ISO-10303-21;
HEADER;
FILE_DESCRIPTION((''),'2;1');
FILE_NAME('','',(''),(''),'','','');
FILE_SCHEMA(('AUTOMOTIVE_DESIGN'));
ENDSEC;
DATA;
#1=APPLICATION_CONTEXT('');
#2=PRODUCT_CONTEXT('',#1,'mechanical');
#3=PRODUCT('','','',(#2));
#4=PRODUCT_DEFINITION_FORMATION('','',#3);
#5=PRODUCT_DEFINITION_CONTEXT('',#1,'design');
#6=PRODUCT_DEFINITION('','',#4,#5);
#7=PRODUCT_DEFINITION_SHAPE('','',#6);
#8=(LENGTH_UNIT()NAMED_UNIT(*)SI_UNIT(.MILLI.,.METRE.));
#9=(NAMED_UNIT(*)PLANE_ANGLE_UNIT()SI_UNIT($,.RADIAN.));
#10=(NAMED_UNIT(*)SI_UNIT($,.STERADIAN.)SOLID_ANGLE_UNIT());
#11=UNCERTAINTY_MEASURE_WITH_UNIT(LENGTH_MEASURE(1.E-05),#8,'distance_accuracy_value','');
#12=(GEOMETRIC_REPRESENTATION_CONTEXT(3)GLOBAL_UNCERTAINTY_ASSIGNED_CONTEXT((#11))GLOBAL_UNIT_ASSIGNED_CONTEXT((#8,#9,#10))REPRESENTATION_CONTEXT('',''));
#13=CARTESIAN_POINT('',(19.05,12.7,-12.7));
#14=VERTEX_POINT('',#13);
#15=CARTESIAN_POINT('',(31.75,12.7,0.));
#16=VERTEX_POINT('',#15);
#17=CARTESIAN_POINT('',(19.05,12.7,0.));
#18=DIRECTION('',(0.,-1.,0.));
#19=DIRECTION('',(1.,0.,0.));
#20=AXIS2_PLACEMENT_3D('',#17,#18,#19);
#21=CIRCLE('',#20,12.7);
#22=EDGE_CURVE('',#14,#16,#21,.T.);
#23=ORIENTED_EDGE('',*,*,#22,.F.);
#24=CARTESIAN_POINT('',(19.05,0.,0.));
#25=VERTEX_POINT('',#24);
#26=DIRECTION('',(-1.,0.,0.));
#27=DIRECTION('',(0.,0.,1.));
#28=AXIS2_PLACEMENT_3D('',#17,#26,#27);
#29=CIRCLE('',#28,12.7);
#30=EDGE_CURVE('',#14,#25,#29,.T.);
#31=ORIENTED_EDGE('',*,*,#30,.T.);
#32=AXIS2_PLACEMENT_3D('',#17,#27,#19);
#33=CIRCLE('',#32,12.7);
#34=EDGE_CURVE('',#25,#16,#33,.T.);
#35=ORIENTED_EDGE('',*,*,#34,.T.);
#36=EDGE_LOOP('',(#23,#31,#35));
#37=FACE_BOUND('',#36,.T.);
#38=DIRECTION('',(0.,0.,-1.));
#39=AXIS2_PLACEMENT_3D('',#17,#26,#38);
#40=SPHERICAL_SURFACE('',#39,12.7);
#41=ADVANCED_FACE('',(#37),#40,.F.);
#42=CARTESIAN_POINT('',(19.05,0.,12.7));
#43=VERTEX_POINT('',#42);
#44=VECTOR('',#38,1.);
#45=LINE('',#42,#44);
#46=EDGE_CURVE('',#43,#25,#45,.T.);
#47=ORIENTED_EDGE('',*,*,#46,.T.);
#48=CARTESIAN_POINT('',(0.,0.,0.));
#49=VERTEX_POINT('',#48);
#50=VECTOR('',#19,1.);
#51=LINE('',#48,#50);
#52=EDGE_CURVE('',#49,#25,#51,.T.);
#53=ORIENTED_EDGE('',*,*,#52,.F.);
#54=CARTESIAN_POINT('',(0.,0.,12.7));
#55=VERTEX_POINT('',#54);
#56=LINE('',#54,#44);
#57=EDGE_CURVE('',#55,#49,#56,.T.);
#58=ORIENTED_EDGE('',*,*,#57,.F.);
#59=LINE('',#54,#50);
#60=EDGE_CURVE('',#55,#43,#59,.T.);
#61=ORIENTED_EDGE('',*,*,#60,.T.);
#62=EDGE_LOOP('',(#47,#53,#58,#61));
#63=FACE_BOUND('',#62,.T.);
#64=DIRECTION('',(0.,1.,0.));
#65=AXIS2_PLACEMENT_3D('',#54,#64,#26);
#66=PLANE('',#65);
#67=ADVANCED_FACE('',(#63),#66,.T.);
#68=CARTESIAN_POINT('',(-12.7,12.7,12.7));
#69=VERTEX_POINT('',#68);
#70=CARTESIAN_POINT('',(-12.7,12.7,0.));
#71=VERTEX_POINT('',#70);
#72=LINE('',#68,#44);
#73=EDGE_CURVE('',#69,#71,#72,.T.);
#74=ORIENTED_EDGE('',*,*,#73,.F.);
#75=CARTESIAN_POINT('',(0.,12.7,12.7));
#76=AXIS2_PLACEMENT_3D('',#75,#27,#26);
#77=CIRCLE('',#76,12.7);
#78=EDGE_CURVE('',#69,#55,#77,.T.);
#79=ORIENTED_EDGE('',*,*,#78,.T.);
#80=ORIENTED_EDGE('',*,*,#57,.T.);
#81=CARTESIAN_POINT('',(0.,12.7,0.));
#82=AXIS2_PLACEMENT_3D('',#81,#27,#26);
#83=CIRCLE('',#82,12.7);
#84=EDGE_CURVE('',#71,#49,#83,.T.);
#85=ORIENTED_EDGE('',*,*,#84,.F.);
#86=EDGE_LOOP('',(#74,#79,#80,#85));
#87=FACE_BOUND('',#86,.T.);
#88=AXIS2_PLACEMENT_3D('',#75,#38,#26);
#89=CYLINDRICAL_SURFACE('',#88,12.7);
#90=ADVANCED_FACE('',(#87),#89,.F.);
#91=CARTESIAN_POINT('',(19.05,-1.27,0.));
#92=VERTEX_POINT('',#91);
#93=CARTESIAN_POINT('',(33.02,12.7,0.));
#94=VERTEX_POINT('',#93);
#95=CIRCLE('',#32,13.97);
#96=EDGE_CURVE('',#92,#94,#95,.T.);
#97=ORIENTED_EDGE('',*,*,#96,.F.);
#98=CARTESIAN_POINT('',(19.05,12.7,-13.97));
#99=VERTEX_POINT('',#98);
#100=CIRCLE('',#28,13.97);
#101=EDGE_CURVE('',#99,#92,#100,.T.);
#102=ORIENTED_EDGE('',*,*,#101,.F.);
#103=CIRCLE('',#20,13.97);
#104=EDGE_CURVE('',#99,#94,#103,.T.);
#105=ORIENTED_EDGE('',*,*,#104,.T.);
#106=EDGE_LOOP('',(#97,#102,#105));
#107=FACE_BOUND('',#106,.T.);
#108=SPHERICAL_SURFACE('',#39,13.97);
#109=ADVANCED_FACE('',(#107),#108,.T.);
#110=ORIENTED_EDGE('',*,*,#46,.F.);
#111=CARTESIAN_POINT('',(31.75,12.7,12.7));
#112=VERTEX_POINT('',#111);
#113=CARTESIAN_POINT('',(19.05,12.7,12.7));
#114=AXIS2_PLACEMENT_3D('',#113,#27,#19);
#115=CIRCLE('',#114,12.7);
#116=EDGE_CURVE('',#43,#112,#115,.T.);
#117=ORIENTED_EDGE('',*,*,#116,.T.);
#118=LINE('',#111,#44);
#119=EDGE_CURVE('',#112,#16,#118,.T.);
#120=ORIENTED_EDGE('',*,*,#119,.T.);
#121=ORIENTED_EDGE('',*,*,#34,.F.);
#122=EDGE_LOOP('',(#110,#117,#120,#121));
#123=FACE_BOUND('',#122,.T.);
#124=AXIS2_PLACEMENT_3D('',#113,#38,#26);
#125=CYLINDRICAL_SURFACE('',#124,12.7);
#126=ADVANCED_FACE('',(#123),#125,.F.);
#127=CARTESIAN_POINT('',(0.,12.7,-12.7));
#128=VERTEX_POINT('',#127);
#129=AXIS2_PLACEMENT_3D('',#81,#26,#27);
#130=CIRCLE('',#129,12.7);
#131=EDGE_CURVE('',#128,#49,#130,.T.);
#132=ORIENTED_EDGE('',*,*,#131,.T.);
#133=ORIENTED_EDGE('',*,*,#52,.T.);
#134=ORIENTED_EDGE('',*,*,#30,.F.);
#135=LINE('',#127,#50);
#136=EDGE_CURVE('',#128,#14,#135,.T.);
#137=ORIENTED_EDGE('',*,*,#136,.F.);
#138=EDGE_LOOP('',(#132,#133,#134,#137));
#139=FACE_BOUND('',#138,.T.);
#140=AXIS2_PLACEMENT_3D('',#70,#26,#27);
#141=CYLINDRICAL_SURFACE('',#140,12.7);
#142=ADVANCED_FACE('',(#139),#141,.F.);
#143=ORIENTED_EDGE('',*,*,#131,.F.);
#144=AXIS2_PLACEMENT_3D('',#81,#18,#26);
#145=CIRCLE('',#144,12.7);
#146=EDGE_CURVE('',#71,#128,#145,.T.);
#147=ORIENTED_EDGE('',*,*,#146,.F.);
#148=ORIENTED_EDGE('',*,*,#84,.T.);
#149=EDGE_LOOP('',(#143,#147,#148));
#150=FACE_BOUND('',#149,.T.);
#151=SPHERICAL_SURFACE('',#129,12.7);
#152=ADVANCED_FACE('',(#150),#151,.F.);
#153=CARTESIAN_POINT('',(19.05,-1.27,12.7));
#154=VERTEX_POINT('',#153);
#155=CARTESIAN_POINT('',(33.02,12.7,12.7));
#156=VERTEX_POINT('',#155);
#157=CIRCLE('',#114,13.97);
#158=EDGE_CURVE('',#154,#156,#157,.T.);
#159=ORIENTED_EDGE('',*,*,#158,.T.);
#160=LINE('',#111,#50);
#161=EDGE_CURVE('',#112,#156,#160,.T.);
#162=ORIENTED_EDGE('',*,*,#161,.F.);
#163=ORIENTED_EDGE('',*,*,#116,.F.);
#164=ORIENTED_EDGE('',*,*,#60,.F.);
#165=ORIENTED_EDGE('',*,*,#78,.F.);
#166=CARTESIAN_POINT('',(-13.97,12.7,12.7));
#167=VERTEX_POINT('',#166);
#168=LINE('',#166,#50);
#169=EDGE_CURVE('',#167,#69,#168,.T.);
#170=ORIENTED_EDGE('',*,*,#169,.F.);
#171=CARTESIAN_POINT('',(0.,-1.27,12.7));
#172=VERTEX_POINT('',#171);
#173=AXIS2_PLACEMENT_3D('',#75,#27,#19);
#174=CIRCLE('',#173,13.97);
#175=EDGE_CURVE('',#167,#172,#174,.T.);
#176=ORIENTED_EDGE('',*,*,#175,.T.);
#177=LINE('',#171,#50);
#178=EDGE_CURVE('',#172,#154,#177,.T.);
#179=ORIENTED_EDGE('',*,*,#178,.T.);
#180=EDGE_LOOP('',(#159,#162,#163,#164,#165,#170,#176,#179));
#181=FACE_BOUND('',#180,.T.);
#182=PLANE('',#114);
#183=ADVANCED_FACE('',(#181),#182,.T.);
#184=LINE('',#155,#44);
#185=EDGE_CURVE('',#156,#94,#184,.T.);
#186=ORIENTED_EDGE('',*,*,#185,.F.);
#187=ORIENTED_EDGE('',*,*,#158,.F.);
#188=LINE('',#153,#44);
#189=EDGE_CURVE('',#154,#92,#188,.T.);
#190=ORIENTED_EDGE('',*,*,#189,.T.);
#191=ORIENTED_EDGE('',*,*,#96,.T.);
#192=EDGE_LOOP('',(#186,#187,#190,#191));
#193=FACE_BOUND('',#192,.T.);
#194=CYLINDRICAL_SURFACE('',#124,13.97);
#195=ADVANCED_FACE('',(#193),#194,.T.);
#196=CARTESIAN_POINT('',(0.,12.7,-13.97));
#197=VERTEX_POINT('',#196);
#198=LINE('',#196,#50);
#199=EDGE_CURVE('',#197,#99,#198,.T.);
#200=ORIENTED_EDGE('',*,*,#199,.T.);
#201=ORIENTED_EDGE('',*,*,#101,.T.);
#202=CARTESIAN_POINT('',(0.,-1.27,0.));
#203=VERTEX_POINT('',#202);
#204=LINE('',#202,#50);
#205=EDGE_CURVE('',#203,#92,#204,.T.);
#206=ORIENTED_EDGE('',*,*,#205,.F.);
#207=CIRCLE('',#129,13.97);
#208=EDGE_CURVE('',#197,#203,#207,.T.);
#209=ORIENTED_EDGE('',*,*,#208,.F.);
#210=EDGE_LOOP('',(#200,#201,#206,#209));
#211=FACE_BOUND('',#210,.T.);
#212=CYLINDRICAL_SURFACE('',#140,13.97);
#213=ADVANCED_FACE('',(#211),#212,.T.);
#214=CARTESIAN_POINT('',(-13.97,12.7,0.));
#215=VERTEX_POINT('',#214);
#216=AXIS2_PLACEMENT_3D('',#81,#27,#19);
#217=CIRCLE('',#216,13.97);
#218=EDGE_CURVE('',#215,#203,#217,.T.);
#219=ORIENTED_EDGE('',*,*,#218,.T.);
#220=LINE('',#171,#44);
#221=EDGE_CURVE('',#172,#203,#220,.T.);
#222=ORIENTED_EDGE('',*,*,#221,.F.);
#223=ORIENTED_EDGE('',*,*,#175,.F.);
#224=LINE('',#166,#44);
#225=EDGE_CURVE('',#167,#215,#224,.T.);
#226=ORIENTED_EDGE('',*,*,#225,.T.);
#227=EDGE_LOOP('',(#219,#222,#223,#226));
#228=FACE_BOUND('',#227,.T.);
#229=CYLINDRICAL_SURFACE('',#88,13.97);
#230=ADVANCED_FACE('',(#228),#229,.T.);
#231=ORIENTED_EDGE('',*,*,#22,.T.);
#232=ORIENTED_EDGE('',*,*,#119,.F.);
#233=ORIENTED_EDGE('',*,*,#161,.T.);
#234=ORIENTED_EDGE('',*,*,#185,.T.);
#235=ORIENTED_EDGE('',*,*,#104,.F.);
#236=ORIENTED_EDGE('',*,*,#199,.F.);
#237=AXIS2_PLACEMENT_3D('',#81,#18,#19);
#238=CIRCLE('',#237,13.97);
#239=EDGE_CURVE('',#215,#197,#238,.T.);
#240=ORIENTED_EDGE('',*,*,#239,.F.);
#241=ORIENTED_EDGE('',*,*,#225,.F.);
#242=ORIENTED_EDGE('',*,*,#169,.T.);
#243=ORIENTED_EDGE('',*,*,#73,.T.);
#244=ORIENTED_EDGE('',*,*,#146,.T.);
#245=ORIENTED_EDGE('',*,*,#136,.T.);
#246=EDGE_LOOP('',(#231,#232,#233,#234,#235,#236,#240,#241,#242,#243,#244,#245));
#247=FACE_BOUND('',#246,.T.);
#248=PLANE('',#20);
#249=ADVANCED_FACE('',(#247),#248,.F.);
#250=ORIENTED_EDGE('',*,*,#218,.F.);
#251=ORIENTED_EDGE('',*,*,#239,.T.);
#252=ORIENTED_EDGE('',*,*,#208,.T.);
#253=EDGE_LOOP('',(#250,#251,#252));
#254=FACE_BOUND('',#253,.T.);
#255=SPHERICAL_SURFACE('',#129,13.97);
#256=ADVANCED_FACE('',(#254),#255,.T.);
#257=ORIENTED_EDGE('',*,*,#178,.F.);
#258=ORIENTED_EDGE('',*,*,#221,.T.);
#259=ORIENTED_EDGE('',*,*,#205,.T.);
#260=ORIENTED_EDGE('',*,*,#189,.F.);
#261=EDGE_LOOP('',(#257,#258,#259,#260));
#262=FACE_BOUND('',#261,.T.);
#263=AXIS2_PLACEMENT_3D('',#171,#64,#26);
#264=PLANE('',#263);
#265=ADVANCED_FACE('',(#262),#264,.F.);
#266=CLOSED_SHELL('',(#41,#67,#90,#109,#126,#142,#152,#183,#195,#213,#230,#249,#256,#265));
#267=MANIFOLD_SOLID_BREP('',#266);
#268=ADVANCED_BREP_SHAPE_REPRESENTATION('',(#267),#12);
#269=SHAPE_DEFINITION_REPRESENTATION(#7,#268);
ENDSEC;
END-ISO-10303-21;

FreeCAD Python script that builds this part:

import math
import FreeCAD as App
import Part
import Sketcher

V = App.Vector
Q = App.Units.Quantity

doc = App.newDocument("Part")
body = doc.addObject("PartDesign::Body", "Body")

# Sketch on XY plane
sketch1 = body.newObject("Sketcher::SketchObject", "Sketch")
sketch1.AttachmentSupport = (doc.getObject("XY_Plane"), [""])
sketch1.MapMode = "FlatFace"
sketch1.addGeometry(Part.ArcOfCircle(Part.Circle(V(0, 12.7, 0), V(0, 0, 1), 12.7), math.radians(180), math.radians(270)), False)
sketch1.addGeometry(Part.LineSegment(V(-12.7, 12.7, 0), V(-13.97, 12.7, 0)), False)
sketch1.addGeometry(Part.ArcOfCircle(Part.Circle(V(0, 12.7, 0), V(0, 0, 1), 13.97), math.radians(-180), math.radians(-90)), False)
sketch1.addGeometry(Part.LineSegment(V(0, -1.27, 0), V(19.05, -1.27, 0)), False)
sketch1.addGeometry(Part.ArcOfCircle(Part.Circle(V(19.05, 12.7, 0), V(0, 0, 1), 13.97), math.radians(-90), math.radians(0)), False)
sketch1.addGeometry(Part.LineSegment(V(33.02, 12.7, 0), V(31.75, 12.7, 0)), False)
sketch1.addGeometry(Part.ArcOfCircle(Part.Circle(V(19.05, 12.7, 0), V(0, 0, 1), 12.7), math.radians(-90), math.radians(0)), False)
sketch1.addGeometry(Part.LineSegment(V(19.05, 0, 0), V(0, 0, 0)), False)
sketch1.addGeometry(Part.LineSegment(V(-13.97, 12.7, 0), V(33.02, 12.7, 0)), True)  # axis
sketch1.addConstraint(Sketcher.Constraint("Coincident", 0, 1, 1, 1))
sketch1.addConstraint(Sketcher.Constraint("Coincident", 1, 2, 2, 1))
sketch1.addConstraint(Sketcher.Constraint("Tangent", 2, 2, 3, 1))
sketch1.addConstraint(Sketcher.Constraint("Tangent", 3, 2, 4, 1))
sketch1.addConstraint(Sketcher.Constraint("Coincident", 4, 2, 5, 1))
sketch1.addConstraint(Sketcher.Constraint("Coincident", 5, 2, 6, 2))
sketch1.addConstraint(Sketcher.Constraint("Tangent", 6, 1, 7, 1))
sketch1.addConstraint(Sketcher.Constraint("Tangent", 7, 2, 0, 2))
sketch1.addConstraint(Sketcher.Constraint("Horizontal", 1))
sketch1.addConstraint(Sketcher.Constraint("Horizontal", 3))
sketch1.addConstraint(Sketcher.Constraint("Horizontal", 5))
sketch1.addConstraint(Sketcher.Constraint("Horizontal", 7))
sketch1.addConstraint(Sketcher.Constraint("Horizontal", 8))
sketch1.addConstraint(Sketcher.Constraint("Coincident", 7, 2, -1, 1))
sketch1.addConstraint(Sketcher.Constraint("Coincident", 2, 3, 0, 3))
sketch1.addConstraint(Sketcher.Constraint("Coincident", 6, 3, 4, 3))
sketch1.addConstraint(Sketcher.Constraint("Coincident", 8, 1, 1, 2))
sketch1.addConstraint(Sketcher.Constraint("Coincident", 8, 2, 4, 2))
sketch1.addConstraint(Sketcher.Constraint("Equal", 2, 4))
sketch1.addConstraint(Sketcher.Constraint("Horizontal", 6, 3, 0, 1))
sketch1.addConstraint(Sketcher.Constraint("Radius", 0, Q("0.5 in")))
sketch1.addConstraint(Sketcher.Constraint("Radius", 2, Q("0.55 in")))
sketch1.addConstraint(Sketcher.Constraint("DistanceX", 3, 1, 3, 2, Q("0.75 in")))
revolution = body.newObject("PartDesign::Revolution", "Revolution")
revolution.Profile = sketch1
revolution.ReferenceAxis = (sketch1, ["Axis0"])
revolution.Angle = 90

# Sketch on XY plane
sketch2 = body.newObject("Sketcher::SketchObject", "Sketch001")
sketch2.AttachmentSupport = (doc.getObject("XY_Plane"), [""])
sketch2.MapMode = "FlatFace"
sketch2.addGeometry(Part.ArcOfCircle(Part.Circle(V(0, 12.7, 0), V(0, 0, 1), 12.7), math.radians(180), math.radians(270)), False)
sketch2.addGeometry(Part.LineSegment(V(-12.7, 12.7, 0), V(-13.97, 12.7, 0)), False)
sketch2.addGeometry(Part.ArcOfCircle(Part.Circle(V(0, 12.7, 0), V(0, 0, 1), 13.97), math.radians(-180), math.radians(-90)), False)
sketch2.addGeometry(Part.LineSegment(V(0, -1.27, 0), V(19.05, -1.27, 0)), False)
sketch2.addGeometry(Part.ArcOfCircle(Part.Circle(V(19.05, 12.7, 0), V(0, 0, 1), 13.97), math.radians(-90), math.radians(0)), False)
sketch2.addGeometry(Part.LineSegment(V(33.02, 12.7, 0), V(31.75, 12.7, 0)), False)
sketch2.addGeometry(Part.ArcOfCircle(Part.Circle(V(19.05, 12.7, 0), V(0, 0, 1), 12.7), math.radians(-90), math.radians(0)), False)
sketch2.addGeometry(Part.LineSegment(V(19.05, 0, 0), V(0, 0, 0)), False)
sketch2.addConstraint(Sketcher.Constraint("Coincident", 0, 1, 1, 1))
sketch2.addConstraint(Sketcher.Constraint("Coincident", 1, 2, 2, 1))
sketch2.addConstraint(Sketcher.Constraint("Tangent", 2, 2, 3, 1))
sketch2.addConstraint(Sketcher.Constraint("Tangent", 3, 2, 4, 1))
sketch2.addConstraint(Sketcher.Constraint("Coincident", 4, 2, 5, 1))
sketch2.addConstraint(Sketcher.Constraint("Coincident", 5, 2, 6, 2))
sketch2.addConstraint(Sketcher.Constraint("Tangent", 6, 1, 7, 1))
sketch2.addConstraint(Sketcher.Constraint("Tangent", 7, 2, 0, 2))
sketch2.addConstraint(Sketcher.Constraint("Horizontal", 1))
sketch2.addConstraint(Sketcher.Constraint("Horizontal", 3))
sketch2.addConstraint(Sketcher.Constraint("Horizontal", 5))
sketch2.addConstraint(Sketcher.Constraint("Horizontal", 7))
sketch2.addConstraint(Sketcher.Constraint("Coincident", 7, 2, -1, 1))
sketch2.addConstraint(Sketcher.Constraint("Coincident", 2, 3, 0, 3))
sketch2.addConstraint(Sketcher.Constraint("Coincident", 6, 3, 4, 3))
sketch2.addConstraint(Sketcher.Constraint("Equal", 2, 4))
sketch2.addConstraint(Sketcher.Constraint("Horizontal", 6, 3, 0, 1))
sketch2.addConstraint(Sketcher.Constraint("Horizontal", 1, 2, 4, 2))
sketch2.addConstraint(Sketcher.Constraint("Radius", 0, Q("0.5 in")))
sketch2.addConstraint(Sketcher.Constraint("Radius", 2, Q("0.55 in")))
sketch2.addConstraint(Sketcher.Constraint("DistanceX", 3, 1, 3, 2, Q("0.75 in")))
pad1 = body.newObject("PartDesign::Pad", "Pad")
pad1.Profile = sketch2
pad1.Length = Q("0.5 in")

doc.recompute()
